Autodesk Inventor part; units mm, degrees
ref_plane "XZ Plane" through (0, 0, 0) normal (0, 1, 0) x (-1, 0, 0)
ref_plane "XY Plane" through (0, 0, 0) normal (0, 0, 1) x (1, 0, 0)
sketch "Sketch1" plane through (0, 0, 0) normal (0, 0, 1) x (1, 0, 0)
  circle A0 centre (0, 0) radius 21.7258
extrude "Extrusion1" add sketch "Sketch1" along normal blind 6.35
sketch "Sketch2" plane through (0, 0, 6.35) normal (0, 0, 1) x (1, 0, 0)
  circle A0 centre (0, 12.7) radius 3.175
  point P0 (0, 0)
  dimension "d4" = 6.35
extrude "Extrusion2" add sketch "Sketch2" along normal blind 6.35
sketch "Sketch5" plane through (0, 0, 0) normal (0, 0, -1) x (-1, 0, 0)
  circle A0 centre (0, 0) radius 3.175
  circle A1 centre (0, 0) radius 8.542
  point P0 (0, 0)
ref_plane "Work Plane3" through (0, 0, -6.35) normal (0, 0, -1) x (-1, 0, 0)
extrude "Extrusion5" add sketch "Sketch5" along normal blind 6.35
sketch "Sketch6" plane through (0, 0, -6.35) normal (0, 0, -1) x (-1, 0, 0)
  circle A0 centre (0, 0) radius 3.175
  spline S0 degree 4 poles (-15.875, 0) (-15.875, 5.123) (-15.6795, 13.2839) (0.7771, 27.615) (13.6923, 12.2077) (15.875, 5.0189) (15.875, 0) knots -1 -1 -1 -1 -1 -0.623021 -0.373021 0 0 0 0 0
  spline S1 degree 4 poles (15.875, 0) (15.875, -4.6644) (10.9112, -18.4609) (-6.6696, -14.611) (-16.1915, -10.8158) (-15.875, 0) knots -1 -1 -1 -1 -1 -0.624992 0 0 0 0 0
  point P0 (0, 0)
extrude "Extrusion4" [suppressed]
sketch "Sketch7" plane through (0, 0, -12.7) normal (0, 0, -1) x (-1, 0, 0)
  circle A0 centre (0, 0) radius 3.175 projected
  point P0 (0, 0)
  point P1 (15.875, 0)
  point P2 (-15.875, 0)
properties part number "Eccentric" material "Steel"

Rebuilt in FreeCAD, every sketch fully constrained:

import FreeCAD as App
import Part
import Sketcher
from FreeCAD import Vector
Q = App.Units.Quantity

doc = App.newDocument("Part")
body = doc.addObject("PartDesign::Body", "Body")

sketch1 = doc.addObject("Sketcher::SketchObject", "Sketch")
body.addObject(sketch1)
sketch1.AttachmentSupport = (doc.XY_Plane, [""])
sketch1.MapMode = "FlatFace"
sketch1.addGeometry(Part.Circle(Vector(0, 0, 0), Vector(0, 0, 1), 22), False)
sketch1.addConstraint([
    Sketcher.Constraint("Coincident", 0, 3, -1, 1),
    Sketcher.Constraint("Diameter", 0, Q("1.7107 in")),
])
pad1 = doc.addObject("PartDesign::Pad", "Pad")
body.addObject(pad1)
pad1.Profile = sketch1
pad1.Length = Q("0.25 in")

sketch2 = doc.addObject("Sketcher::SketchObject", "Sketch001")
body.addObject(sketch2)
sketch2.AttachmentSupport = (doc.XY_Plane, [""])
sketch2.MapMode = "FlatFace"
sketch2.AttachmentOffset = App.Placement(Vector(0, 0, 0.25 * 25.4), App.Rotation())
sketch2.addGeometry(Part.Circle(Vector(0, 12.7, 0), Vector(0, 0, 1), 3.2), False)
sketch2.addConstraint([
    Sketcher.Constraint("PointOnObject", 0, 3, -2),
    Sketcher.Constraint("Diameter", 0, Q("0.25 in")),
    Sketcher.Constraint("DistanceY", -1, 1, 0, 3, Q("0.5 in")),
])
pad2 = doc.addObject("PartDesign::Pad", "Pad001")
body.addObject(pad2)
pad2.Profile = sketch2
pad2.Length = Q("0.25 in")

sketch3 = doc.addObject("Sketcher::SketchObject", "Sketch002")
body.addObject(sketch3)
sketch3.AttachmentSupport = (doc.XY_Plane, [""])
sketch3.MapMode = "FlatFace"
sketch3.addGeometry([
    Part.Circle(Vector(0, 0, 0), Vector(0, 0, 1), 8.5),
    Part.Circle(Vector(0, 0, 0), Vector(0, 0, 1), 3.2),
], False)
sketch3.addConstraint([
    Sketcher.Constraint("Coincident", 0, 3, -1, 1),
    Sketcher.Constraint("Coincident", 1, 3, -1, 1),
    Sketcher.Constraint("Diameter", 1, Q("0.25 in")),
    Sketcher.Constraint("Diameter", 0, Q("0.6726 in")),
])
pad3 = doc.addObject("PartDesign::Pad", "Pad002")
body.addObject(pad3)
pad3.Profile = sketch3
pad3.Length = Q("0.25 in")
pad3.Reversed = True

doc.recompute()
